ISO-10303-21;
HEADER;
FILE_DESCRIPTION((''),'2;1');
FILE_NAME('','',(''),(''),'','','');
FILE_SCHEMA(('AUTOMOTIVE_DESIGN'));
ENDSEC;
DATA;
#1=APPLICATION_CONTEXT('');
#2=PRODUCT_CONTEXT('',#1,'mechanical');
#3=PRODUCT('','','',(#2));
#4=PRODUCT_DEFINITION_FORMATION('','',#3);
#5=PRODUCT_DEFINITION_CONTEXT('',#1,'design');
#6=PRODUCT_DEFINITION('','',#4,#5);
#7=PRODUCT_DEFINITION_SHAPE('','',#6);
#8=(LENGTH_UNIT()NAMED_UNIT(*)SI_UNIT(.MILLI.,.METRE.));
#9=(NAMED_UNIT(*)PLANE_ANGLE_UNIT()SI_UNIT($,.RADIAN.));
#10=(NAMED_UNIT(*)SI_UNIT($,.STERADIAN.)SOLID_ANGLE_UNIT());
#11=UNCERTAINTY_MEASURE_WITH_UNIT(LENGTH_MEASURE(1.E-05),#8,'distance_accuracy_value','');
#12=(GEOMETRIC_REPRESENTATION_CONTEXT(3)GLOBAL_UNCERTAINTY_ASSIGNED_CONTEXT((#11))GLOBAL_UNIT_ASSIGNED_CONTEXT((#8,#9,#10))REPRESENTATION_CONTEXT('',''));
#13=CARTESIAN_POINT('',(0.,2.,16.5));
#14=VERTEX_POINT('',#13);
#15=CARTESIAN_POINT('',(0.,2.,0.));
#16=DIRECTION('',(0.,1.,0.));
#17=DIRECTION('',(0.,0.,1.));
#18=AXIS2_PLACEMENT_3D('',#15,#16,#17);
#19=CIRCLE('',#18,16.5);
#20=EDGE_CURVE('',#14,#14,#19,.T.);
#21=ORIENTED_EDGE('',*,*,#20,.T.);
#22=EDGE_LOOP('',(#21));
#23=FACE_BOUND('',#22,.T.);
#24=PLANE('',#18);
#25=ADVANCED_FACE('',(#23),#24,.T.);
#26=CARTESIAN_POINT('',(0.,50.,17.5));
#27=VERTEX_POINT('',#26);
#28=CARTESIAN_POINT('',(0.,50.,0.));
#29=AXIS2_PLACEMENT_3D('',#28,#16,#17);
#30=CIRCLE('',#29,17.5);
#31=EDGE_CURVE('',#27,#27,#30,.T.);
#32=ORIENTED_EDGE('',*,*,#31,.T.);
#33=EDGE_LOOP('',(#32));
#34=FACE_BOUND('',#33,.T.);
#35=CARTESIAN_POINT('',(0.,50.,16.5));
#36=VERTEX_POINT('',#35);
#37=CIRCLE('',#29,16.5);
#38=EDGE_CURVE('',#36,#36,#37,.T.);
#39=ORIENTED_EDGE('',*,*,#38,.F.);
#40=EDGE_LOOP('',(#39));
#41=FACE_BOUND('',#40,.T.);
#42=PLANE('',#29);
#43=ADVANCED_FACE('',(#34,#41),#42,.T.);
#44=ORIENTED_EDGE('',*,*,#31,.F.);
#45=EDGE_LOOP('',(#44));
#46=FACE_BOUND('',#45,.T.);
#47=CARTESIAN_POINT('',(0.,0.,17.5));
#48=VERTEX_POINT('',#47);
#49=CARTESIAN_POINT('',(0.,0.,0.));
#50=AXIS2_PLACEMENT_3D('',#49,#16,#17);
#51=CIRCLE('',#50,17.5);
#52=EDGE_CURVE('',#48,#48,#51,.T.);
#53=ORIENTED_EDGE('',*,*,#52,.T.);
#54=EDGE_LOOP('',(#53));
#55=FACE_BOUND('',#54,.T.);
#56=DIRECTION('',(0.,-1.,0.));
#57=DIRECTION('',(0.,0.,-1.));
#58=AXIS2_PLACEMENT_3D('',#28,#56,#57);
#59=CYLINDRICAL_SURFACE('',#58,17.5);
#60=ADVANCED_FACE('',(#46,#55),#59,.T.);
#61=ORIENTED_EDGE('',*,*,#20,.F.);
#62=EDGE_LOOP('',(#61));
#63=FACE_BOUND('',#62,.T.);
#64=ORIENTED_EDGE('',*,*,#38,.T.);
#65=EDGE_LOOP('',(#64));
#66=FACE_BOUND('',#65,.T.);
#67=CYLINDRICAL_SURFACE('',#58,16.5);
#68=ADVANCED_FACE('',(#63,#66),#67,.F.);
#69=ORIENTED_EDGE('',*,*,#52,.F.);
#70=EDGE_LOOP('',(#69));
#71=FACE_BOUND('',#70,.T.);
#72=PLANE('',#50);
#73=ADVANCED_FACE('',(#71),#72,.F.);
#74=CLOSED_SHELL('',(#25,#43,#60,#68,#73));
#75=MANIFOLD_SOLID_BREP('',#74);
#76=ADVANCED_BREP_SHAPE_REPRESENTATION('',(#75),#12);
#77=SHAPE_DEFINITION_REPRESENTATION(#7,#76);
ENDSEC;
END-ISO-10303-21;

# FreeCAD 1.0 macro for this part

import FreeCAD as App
import Part
import Sketcher

V = App.Vector

doc = App.newDocument("Part")
body = doc.addObject("PartDesign::Body", "Body")

# Sketch on XZ plane
sketch1 = body.newObject("Sketcher::SketchObject", "Sketch")
sketch1.AttachmentSupport = (doc.getObject("XZ_Plane"), [""])
sketch1.MapMode = "FlatFace"
sketch1.addGeometry([
    Part.Circle(V(0, 0, 0), V(0, 0, 1), 18),
    Part.Circle(V(0, 0, 0), V(0, 0, 1), 16),
], False)
sketch1.addConstraint([
    Sketcher.Constraint("Coincident", 0, 3, -1, 1),
    Sketcher.Constraint("Coincident", 1, 3, -1, 1),
    Sketcher.Constraint("Diameter", 0, 35.0),
    Sketcher.Constraint("Diameter", 1, 33.0),
])
pad1 = body.newObject("PartDesign::Pad", "Pad")
pad1.Profile = sketch1
pad1.Length = 50
pad1.Reversed = True

# Sketch on XZ plane
sketch2 = body.newObject("Sketcher::SketchObject", "Sketch001")
sketch2.AttachmentSupport = (doc.getObject("XZ_Plane"), [""])
sketch2.MapMode = "FlatFace"
sketch2.addGeometry(Part.Circle(V(0, 0, 0), V(0, 0, 1), 18), False)
sketch2.addConstraint([
    Sketcher.Constraint("Coincident", 0, 3, -1, 1),
    Sketcher.Constraint("Diameter", 0, 35.0),
])
pad2 = body.newObject("PartDesign::Pad", "Pad001")
pad2.Profile = sketch2
pad2.Length = 2
pad2.Reversed = True

doc.recompute()
